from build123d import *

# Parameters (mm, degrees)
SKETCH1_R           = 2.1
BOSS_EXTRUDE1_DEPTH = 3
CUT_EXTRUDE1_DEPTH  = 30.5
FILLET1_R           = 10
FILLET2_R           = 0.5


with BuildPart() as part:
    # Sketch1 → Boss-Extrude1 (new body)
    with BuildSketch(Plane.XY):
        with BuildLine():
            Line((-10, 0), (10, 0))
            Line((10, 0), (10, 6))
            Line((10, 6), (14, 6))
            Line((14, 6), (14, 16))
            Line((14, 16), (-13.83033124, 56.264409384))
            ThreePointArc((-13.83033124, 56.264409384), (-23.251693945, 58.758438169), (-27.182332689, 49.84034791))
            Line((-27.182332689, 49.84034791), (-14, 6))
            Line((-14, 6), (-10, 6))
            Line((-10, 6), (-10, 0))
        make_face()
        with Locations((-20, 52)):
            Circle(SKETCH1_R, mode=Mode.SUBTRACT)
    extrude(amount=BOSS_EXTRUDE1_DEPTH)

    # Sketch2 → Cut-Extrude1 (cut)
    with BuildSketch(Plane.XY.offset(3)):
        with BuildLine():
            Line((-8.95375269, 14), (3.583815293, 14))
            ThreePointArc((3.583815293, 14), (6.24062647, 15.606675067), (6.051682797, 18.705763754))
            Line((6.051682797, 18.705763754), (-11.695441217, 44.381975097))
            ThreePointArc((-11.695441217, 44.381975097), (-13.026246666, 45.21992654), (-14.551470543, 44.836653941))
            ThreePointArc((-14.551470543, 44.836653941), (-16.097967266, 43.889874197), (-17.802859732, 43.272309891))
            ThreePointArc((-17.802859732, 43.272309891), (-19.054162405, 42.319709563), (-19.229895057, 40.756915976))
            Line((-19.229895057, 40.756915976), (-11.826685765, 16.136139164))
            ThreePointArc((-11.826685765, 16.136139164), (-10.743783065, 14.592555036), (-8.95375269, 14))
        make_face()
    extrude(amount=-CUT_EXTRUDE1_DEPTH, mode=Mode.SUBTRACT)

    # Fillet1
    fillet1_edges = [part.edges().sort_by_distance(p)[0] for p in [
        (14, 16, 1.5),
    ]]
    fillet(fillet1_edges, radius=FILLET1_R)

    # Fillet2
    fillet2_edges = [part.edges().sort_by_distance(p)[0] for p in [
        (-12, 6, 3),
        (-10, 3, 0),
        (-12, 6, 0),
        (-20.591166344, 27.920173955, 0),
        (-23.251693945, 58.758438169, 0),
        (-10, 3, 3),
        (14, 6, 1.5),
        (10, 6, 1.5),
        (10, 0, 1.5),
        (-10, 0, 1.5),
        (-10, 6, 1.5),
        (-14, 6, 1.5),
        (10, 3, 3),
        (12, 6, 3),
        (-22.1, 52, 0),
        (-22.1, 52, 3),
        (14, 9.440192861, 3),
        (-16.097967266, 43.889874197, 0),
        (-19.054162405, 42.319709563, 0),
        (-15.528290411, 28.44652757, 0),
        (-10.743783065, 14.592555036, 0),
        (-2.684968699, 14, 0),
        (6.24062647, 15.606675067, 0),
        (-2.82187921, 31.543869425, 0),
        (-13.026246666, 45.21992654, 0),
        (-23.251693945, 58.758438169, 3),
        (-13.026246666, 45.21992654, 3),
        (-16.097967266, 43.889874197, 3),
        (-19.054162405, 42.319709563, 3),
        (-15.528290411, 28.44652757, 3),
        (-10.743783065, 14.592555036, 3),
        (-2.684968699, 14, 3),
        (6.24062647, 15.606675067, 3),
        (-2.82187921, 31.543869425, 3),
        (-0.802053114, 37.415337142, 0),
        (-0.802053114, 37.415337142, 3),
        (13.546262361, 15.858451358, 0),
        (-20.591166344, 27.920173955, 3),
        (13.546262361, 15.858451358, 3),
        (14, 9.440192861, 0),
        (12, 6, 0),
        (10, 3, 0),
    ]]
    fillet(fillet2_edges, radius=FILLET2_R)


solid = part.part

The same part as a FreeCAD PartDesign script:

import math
import FreeCAD as App
import Part
import Sketcher

V = App.Vector
Q = App.Units.Quantity


def edges_at(feature, points):
    """Names of the edges that pass closest to the given points."""
    edges = feature.Shape.Edges
    near = lambda p: min(range(len(edges)), key=lambda i: edges[i].distToShape(Part.Vertex(*p))[0])
    return sorted({f"Edge{near(p) + 1}" for p in points})

doc = App.newDocument("Part")
params = doc.addObject("Spreadsheet::Sheet", "Params")
for row, (alias, value) in enumerate([
    ("sketch1_diameter", "4.2 mm"),
    ("sketch1_radius", "7.5 mm"),
    ("sketch1_width", "20 mm"),
    ("sketch1_width2", "4 mm"),
    ("sketch1_height", "6 mm"),
    ("pad1_length", "3 mm"),
    ("sketch2_radius", "3 mm"),
    ("sketch2_radius2", "2 mm"),
    ("sketch2_radius3", "9 mm"),
    ("pocket1_length", "30.5 mm"),
    ("fillet_radius", "10 mm"),
    ("fillet2_radius", "0.5 mm"),
], start=1):
    params.set(f"A{row}", alias)
    params.set(f"B{row}", "=" + value)
    params.setAlias(f"B{row}", alias)

body = doc.addObject("PartDesign::Body", "Body")

# Sketch on XY plane
sketch1 = doc.addObject("Sketcher::SketchObject", "Sketch")
body.addObject(sketch1)
sketch1.AttachmentSupport = (doc.XY_Plane, [""])
sketch1.MapMode = "FlatFace"
sketch1.addGeometry([
    Part.LineSegment(V(-10, 0, 0), V(10, 0, 0)),  # 0
    Part.LineSegment(V(10, 0, 0), V(10, 6, 0)),  # 1
    Part.LineSegment(V(10, 6, 0), V(14, 6, 0)),  # 2
    Part.LineSegment(V(14, 6, 0), V(14, 16, 0)),  # 3
    Part.LineSegment(V(14, 16, 0), V(-13.8, 56.3, 0)),  # 4
    Part.ArcOfCircle(Part.Circle(V(-20, 52, 0), V(0, 0, 1), 7.5), math.radians(35), math.radians(197)),  # 5
    Part.LineSegment(V(-27.2, 49.8, 0), V(-14, 6, 0)),  # 6
    Part.LineSegment(V(-14, 6, 0), V(-10, 6, 0)),  # 7
    Part.LineSegment(V(-10, 6, 0), V(-10, 0, 0)),  # 8
    Part.Circle(V(-20, 52, 0), V(0, 0, 1), 2.1),  # 9
], False)
sketch1.addConstraint([
    Sketcher.Constraint("Coincident", 0, 2, 1, 1),
    Sketcher.Constraint("Coincident", 1, 2, 2, 1),
    Sketcher.Constraint("Coincident", 2, 2, 3, 1),
    Sketcher.Constraint("Coincident", 3, 2, 4, 1),
    Sketcher.Constraint("Tangent", 4, 2, 5, 1),
    Sketcher.Constraint("Tangent", 5, 2, 6, 1),
    Sketcher.Constraint("Coincident", 6, 2, 7, 1),
    Sketcher.Constraint("Coincident", 7, 2, 8, 1),
    Sketcher.Constraint("Coincident", 8, 2, 0, 1),
    Sketcher.Constraint("Horizontal", 0),
    Sketcher.Constraint("Vertical", 1),
    Sketcher.Constraint("Horizontal", 2),
    Sketcher.Constraint("Vertical", 3),
    Sketcher.Constraint("Horizontal", 7),
    Sketcher.Constraint("Vertical", 8),
    Sketcher.Constraint("Coincident", 9, 3, 5, 3),
    Sketcher.Constraint("Symmetric", 0, 2, 8, 2, -1, 1),
    Sketcher.Constraint("Symmetric", 2, 2, 6, 2, -2),
    Sketcher.Constraint("Diameter", 9, Q("4.2 mm")),
    Sketcher.Constraint("Radius", 5, Q("7.5 mm")),
    Sketcher.Constraint("DistanceX", 0, 1, 0, 2, Q("20 mm")),
    Sketcher.Constraint("DistanceX", 2, 1, 2, 2, Q("4 mm")),
    Sketcher.Constraint("DistanceY", 1, 1, 1, 2, Q("6 mm")),
    Sketcher.Constraint("DistanceY", 3, 1, 3, 2, Q("10 mm")),
    Sketcher.Constraint("DistanceX", 5, 3, -1, 1, Q("20 mm")),
    Sketcher.Constraint("DistanceY", -1, 1, 5, 3, Q("52 mm")),
])
sketch1.setExpression("Constraints[18]", "Params.sketch1_diameter")
sketch1.setExpression("Constraints[19]", "Params.sketch1_radius")
sketch1.setExpression("Constraints[20]", "Params.sketch1_width")
sketch1.setExpression("Constraints[21]", "Params.sketch1_width2")
sketch1.setExpression("Constraints[22]", "Params.sketch1_height")
pad1 = doc.addObject("PartDesign::Pad", "Pad")
body.addObject(pad1)
pad1.Profile = sketch1
pad1.setExpression("Length", "Params.pad1_length")

# Sketch on XY plane
sketch2 = doc.addObject("Sketcher::SketchObject", "Sketch001")
body.addObject(sketch2)
sketch2.AttachmentSupport = (doc.XY_Plane, [""])
sketch2.MapMode = "FlatFace"
sketch2.AttachmentOffset = App.Placement(V(0, 0, 3), App.Rotation())
sketch2.addGeometry([
    Part.LineSegment(V(-9, 14, 0), V(3.6, 14, 0)),  # 0
    Part.ArcOfCircle(Part.Circle(V(3.6, 17, 0), V(0, 0, 1), 3), math.radians(-90), math.radians(35)),  # 1
    Part.LineSegment(V(6.1, 18.7, 0), V(-11.7, 44.4, 0)),  # 2
    Part.ArcOfCircle(Part.Circle(V(-13.3, 43.2, 0), V(0, 0, 1), 2), math.radians(35), math.radians(127)),  # 3
    Part.ArcOfCircle(Part.Circle(V(-20, 52, 0), V(0, 0, 1), 9), math.radians(-76), math.radians(-53)),  # 4
    Part.ArcOfCircle(Part.Circle(V(-17.3, 41.3, 0), V(0, 0, 1), 2), math.radians(104), math.radians(197)),  # 5
    Part.LineSegment(V(-19.2, 40.8, 0), V(-11.8, 16.1, 0)),  # 6
    Part.ArcOfCircle(Part.Circle(V(-9, 17, 0), V(0, 0, 1), 3), math.radians(-163), math.radians(-90)),  # 7
], False)
sketch2.addConstraint([
    Sketcher.Constraint("Tangent", 0, 2, 1, 1),
    Sketcher.Constraint("Tangent", 1, 2, 2, 1),
    Sketcher.Constraint("Tangent", 2, 2, 3, 1),
    Sketcher.Constraint("Tangent", 3, 2, 4, 2),
    Sketcher.Constraint("Tangent", 4, 1, 5, 1),
    Sketcher.Constraint("Tangent", 5, 2, 6, 1),
    Sketcher.Constraint("Tangent", 6, 2, 7, 1),
    Sketcher.Constraint("Tangent", 7, 2, 0, 1),
    Sketcher.Constraint("Horizontal", 0),
    Sketcher.Constraint("Equal", 3, 5),
    Sketcher.Constraint("Equal", 1, 7),
    Sketcher.Constraint("Radius", 1, Q("3 mm")),
    Sketcher.Constraint("Radius", 3, Q("2 mm")),
    Sketcher.Constraint("Radius", 4, Q("9 mm")),
    Sketcher.Constraint("DistanceY", -1, 1, 1, 3, Q("17 mm")),
    Sketcher.Constraint("DistanceX", 4, 3, -1, 1, Q("20 mm")),
    Sketcher.Constraint("DistanceY", -1, 1, 4, 3, Q("52 mm")),
    Sketcher.Constraint("DistanceY", -1, 1, 3, 3, Q("43.244799 mm")),
    Sketcher.Constraint("DistanceX", 3, 3, 1, 3, Q("16.924502 mm")),
    Sketcher.Constraint("DistanceX", 6, 2, 1, 3, Q("15.410501 mm")),
    Sketcher.Constraint("Distance", 6, Q("25.709729 mm")),
])
sketch2.setExpression("Constraints[11]", "Params.sketch2_radius")
sketch2.setExpression("Constraints[12]", "Params.sketch2_radius2")
sketch2.setExpression("Constraints[13]", "Params.sketch2_radius3")
pocket1 = doc.addObject("PartDesign::Pocket", "Pocket")
body.addObject(pocket1)
pocket1.Profile = sketch2
pocket1.setExpression("Length", "Params.pocket1_length")
doc.recompute()

fillet = doc.addObject("PartDesign::Fillet", "Fillet")
body.addObject(fillet)
fillet.Base = (pocket1, edges_at(pocket1, [(14, 16, 1.5)]))
fillet.setExpression("Radius", "Params.fillet_radius")
doc.recompute()

fillet2 = doc.addObject("PartDesign::Fillet", "Fillet001")
body.addObject(fillet2)
fillet2.Base = (fillet, edges_at(fillet, [
    (-12, 6, 3),
    (-10, 3, 0),
    (-12, 6, 0),
    (-20.591, 27.92, 0),
    (-23.252, 58.758, 0),
    (-10, 3, 3),
    (14, 6, 1.5),
    (10, 6, 1.5),
    (10, 0, 1.5),
    (-10, 0, 1.5),
    (-10, 6, 1.5),
    (-14, 6, 1.5),
    (10, 3, 3),
    (12, 6, 3),
    (-22.1, 52, 0),
    (-22.1, 52, 3),
    (14, 9.44, 3),
    (-16.098, 43.89, 0),
    (-19.054, 42.32, 0),
    (-15.528, 28.447, 0),
    (-10.744, 14.593, 0),
    (-2.685, 14, 0),
    (6.241, 15.607, 0),
    (-2.822, 31.544, 0),
    (-13.026, 45.22, 0),
    (-23.252, 58.758, 3),
    (-13.026, 45.22, 3),
    (-16.098, 43.89, 3),
    (-19.054, 42.32, 3),
    (-15.528, 28.447, 3),
    (-10.744, 14.593, 3),
    (-2.685, 14, 3),
    (6.241, 15.607, 3),
    (-2.822, 31.544, 3),
    (-0.802, 37.415, 0),
    (-0.802, 37.415, 3),
    (13.546, 15.858, 0),
    (-20.591, 27.92, 3),
    (13.546, 15.858, 3),
    (14, 9.44, 0),
    (12, 6, 0),
    (10, 3, 0),
]))
fillet2.setExpression("Radius", "Params.fillet2_radius")

doc.recompute()
